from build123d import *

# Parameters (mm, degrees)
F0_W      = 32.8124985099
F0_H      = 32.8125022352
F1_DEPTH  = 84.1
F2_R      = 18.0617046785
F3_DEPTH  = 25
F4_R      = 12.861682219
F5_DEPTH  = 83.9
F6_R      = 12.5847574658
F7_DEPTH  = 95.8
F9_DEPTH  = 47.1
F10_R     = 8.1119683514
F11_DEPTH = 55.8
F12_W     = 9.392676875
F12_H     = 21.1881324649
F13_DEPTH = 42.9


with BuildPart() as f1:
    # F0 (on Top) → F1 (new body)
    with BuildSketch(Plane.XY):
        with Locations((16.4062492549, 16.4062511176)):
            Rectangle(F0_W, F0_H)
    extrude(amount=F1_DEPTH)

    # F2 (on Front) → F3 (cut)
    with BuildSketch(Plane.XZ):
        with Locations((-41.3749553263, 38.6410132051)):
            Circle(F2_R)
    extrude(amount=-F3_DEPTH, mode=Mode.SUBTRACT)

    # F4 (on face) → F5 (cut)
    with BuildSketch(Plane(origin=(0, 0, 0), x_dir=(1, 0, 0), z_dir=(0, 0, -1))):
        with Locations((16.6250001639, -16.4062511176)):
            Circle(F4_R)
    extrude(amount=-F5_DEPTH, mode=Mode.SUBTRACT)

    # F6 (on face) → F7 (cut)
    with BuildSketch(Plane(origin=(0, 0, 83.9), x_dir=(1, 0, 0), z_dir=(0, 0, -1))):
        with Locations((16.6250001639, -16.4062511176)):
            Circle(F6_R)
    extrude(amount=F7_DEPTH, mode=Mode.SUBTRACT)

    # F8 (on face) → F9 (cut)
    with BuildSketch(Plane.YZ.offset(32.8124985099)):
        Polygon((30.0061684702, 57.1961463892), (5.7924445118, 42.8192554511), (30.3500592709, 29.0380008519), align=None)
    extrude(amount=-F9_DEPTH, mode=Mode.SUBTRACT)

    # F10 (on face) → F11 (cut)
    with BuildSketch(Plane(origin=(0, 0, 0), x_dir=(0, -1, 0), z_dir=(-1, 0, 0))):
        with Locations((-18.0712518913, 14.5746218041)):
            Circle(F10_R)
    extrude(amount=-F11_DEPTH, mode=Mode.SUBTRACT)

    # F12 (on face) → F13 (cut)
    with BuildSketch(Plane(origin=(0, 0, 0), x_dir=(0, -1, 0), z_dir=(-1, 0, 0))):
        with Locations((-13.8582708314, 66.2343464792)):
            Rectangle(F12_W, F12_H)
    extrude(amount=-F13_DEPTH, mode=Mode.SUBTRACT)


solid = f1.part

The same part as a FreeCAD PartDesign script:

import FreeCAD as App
import Part
import Sketcher
from FreeCAD import Vector
Q = App.Units.Quantity


def add_polygon(sketch, points):
    """Adds a closed chain of lines whose ends are joined by coincident constraints."""
    first, n = sketch.GeometryCount, len(points)
    for a, b in zip(points, points[1:] + points[:1]):
        sketch.addGeometry(Part.LineSegment(App.Vector(*a, 0), App.Vector(*b, 0)), False)
    for i in range(n):
        sketch.addConstraint(Sketcher.Constraint("Coincident", first + i, 2, first + (i + 1) % n, 1))

doc = App.newDocument("Part")
body = doc.addObject("PartDesign::Body", "Body")

# Sketch on XY plane
sketch1 = body.newObject("Sketcher::SketchObject", "Sketch")
sketch1.AttachmentSupport = (doc.getObject("XY_Plane"), [""])
sketch1.MapMode = "FlatFace"
add_polygon(sketch1, [(0, 33), (0, 0), (33, 0), (33, 33)])  # lines 0-3
sketch1.addConstraint(Sketcher.Constraint("Vertical", 0))
sketch1.addConstraint(Sketcher.Constraint("Horizontal", 1))
sketch1.addConstraint(Sketcher.Constraint("Vertical", 2))
sketch1.addConstraint(Sketcher.Constraint("Horizontal", 3))
sketch1.addConstraint(Sketcher.Constraint("Coincident", 0, 2, -1, 1))
sketch1.addConstraint(Sketcher.Constraint("DistanceX", 1, 1, 1, 2, Q("32.812499 mm")))
sketch1.addConstraint(Sketcher.Constraint("DistanceY", 0, 2, 0, 1, Q("32.812502 mm")))
pad1 = body.newObject("PartDesign::Pad", "Pad")
pad1.Profile = sketch1
pad1.Length = 84.1

# Sketch on XZ plane
sketch2 = body.newObject("Sketcher::SketchObject", "Sketch001")
sketch2.AttachmentSupport = (doc.getObject("XZ_Plane"), [""])
sketch2.MapMode = "FlatFace"
sketch2.addGeometry(Part.Circle(Vector(-41, 39, 0), Vector(0, 0, 1), 18), False)
sketch2.addConstraint(Sketcher.Constraint("Diameter", 0, Q("36.123409 mm")))
sketch2.addConstraint(Sketcher.Constraint("DistanceX", 0, 3, -1, 1, Q("41.374955 mm")))
sketch2.addConstraint(Sketcher.Constraint("DistanceY", -1, 1, 0, 3, Q("38.641013 mm")))
pocket1 = body.newObject("PartDesign::Pocket", "Pocket")
pocket1.Profile = sketch2
pocket1.Length = 25

# Sketch on XY plane
sketch3 = body.newObject("Sketcher::SketchObject", "Sketch002")
sketch3.AttachmentSupport = (doc.getObject("XY_Plane"), [""])
sketch3.MapMode = "FlatFace"
sketch3.addGeometry(Part.Circle(Vector(17, 16, 0), Vector(0, 0, 1), 13), False)
sketch3.addConstraint(Sketcher.Constraint("Diameter", 0, Q("25.723364 mm")))
sketch3.addConstraint(Sketcher.Constraint("DistanceX", -1, 1, 0, 3, Q("16.625 mm")))
sketch3.addConstraint(Sketcher.Constraint("DistanceY", -1, 1, 0, 3, Q("16.406251 mm")))
pocket2 = body.newObject("PartDesign::Pocket", "Pocket001")
pocket2.Profile = sketch3
pocket2.Length = 83.9
pocket2.Reversed = True

# Sketch on XY plane
sketch4 = body.newObject("Sketcher::SketchObject", "Sketch003")
sketch4.AttachmentSupport = (doc.getObject("XY_Plane"), [""])
sketch4.MapMode = "FlatFace"
sketch4.AttachmentOffset = App.Placement(Vector(0, 0, 83.9), App.Rotation())
sketch4.addGeometry(Part.Circle(Vector(17, 16, 0), Vector(0, 0, 1), 13), False)
sketch4.addConstraint(Sketcher.Constraint("Diameter", 0, Q("25.169515 mm")))
sketch4.addConstraint(Sketcher.Constraint("DistanceX", -1, 1, 0, 3, Q("16.625 mm")))
sketch4.addConstraint(Sketcher.Constraint("DistanceY", -1, 1, 0, 3, Q("16.406251 mm")))
pocket3 = body.newObject("PartDesign::Pocket", "Pocket002")
pocket3.Profile = sketch4
pocket3.Length = 95.8

# Sketch on YZ plane
sketch5 = body.newObject("Sketcher::SketchObject", "Sketch004")
sketch5.AttachmentSupport = (doc.getObject("YZ_Plane"), [""])
sketch5.MapMode = "FlatFace"
sketch5.AttachmentOffset = App.Placement(Vector(0, 0, 32.812499), App.Rotation())
add_polygon(sketch5, [(30, 57), (6, 43), (30, 29)])  # lines 0-2
sketch5.addConstraint(Sketcher.Constraint("Equal", 0, 1))
sketch5.addConstraint(Sketcher.Constraint("Equal", 1, 2))
sketch5.addConstraint(Sketcher.Constraint("DistanceY", -1, 1, 1, 2, Q("29.038001 mm")))
sketch5.addConstraint(Sketcher.Constraint("DistanceX", -1, 1, 1, 2, Q("30.350059 mm")))
sketch5.addConstraint(Sketcher.Constraint("DistanceX", -1, 1, 2, 2, Q("30.006168 mm")))
sketch5.addConstraint(Sketcher.Constraint("DistanceY", 0, 2, 2, 2, Q("14.376891 mm")))
pocket4 = body.newObject("PartDesign::Pocket", "Pocket003")
pocket4.Profile = sketch5
pocket4.Length = 47.1

# Sketch on YZ plane
sketch6 = body.newObject("Sketcher::SketchObject", "Sketch005")
sketch6.AttachmentSupport = (doc.getObject("YZ_Plane"), [""])
sketch6.MapMode = "FlatFace"
sketch6.addGeometry(Part.Circle(Vector(18, 15, 0), Vector(0, 0, 1), 8), False)
sketch6.addConstraint(Sketcher.Constraint("Diameter", 0, Q("16.223937 mm")))
sketch6.addConstraint(Sketcher.Constraint("DistanceX", -1, 1, 0, 3, Q("18.071252 mm")))
sketch6.addConstraint(Sketcher.Constraint("DistanceY", -1, 1, 0, 3, Q("14.574622 mm")))
pocket5 = body.newObject("PartDesign::Pocket", "Pocket004")
pocket5.Profile = sketch6
pocket5.Length = 55.8
pocket5.Reversed = True

# Sketch on YZ plane
sketch7 = body.newObject("Sketcher::SketchObject", "Sketch006")
sketch7.AttachmentSupport = (doc.getObject("YZ_Plane"), [""])
sketch7.MapMode = "FlatFace"
add_polygon(sketch7, [(19, 77), (19, 56), (9, 56), (9, 77)])  # lines 0-3
sketch7.addConstraint(Sketcher.Constraint("Vertical", 0))
sketch7.addConstraint(Sketcher.Constraint("Horizontal", 1))
sketch7.addConstraint(Sketcher.Constraint("Vertical", 2))
sketch7.addConstraint(Sketcher.Constraint("Horizontal", 3))
sketch7.addConstraint(Sketcher.Constraint("DistanceX", 1, 2, 1, 1, Q("9.392677 mm")))
sketch7.addConstraint(Sketcher.Constraint("DistanceY", 0, 2, 0, 1, Q("21.188132 mm")))
sketch7.addConstraint(Sketcher.Constraint("DistanceX", -1, 1, 0, 2, Q("18.554609 mm")))
sketch7.addConstraint(Sketcher.Constraint("DistanceY", -1, 1, 0, 2, Q("55.64028 mm")))
pocket6 = body.newObject("PartDesign::Pocket", "Pocket005")
pocket6.Profile = sketch7
pocket6.Length = 42.9
pocket6.Reversed = True

doc.recompute()
